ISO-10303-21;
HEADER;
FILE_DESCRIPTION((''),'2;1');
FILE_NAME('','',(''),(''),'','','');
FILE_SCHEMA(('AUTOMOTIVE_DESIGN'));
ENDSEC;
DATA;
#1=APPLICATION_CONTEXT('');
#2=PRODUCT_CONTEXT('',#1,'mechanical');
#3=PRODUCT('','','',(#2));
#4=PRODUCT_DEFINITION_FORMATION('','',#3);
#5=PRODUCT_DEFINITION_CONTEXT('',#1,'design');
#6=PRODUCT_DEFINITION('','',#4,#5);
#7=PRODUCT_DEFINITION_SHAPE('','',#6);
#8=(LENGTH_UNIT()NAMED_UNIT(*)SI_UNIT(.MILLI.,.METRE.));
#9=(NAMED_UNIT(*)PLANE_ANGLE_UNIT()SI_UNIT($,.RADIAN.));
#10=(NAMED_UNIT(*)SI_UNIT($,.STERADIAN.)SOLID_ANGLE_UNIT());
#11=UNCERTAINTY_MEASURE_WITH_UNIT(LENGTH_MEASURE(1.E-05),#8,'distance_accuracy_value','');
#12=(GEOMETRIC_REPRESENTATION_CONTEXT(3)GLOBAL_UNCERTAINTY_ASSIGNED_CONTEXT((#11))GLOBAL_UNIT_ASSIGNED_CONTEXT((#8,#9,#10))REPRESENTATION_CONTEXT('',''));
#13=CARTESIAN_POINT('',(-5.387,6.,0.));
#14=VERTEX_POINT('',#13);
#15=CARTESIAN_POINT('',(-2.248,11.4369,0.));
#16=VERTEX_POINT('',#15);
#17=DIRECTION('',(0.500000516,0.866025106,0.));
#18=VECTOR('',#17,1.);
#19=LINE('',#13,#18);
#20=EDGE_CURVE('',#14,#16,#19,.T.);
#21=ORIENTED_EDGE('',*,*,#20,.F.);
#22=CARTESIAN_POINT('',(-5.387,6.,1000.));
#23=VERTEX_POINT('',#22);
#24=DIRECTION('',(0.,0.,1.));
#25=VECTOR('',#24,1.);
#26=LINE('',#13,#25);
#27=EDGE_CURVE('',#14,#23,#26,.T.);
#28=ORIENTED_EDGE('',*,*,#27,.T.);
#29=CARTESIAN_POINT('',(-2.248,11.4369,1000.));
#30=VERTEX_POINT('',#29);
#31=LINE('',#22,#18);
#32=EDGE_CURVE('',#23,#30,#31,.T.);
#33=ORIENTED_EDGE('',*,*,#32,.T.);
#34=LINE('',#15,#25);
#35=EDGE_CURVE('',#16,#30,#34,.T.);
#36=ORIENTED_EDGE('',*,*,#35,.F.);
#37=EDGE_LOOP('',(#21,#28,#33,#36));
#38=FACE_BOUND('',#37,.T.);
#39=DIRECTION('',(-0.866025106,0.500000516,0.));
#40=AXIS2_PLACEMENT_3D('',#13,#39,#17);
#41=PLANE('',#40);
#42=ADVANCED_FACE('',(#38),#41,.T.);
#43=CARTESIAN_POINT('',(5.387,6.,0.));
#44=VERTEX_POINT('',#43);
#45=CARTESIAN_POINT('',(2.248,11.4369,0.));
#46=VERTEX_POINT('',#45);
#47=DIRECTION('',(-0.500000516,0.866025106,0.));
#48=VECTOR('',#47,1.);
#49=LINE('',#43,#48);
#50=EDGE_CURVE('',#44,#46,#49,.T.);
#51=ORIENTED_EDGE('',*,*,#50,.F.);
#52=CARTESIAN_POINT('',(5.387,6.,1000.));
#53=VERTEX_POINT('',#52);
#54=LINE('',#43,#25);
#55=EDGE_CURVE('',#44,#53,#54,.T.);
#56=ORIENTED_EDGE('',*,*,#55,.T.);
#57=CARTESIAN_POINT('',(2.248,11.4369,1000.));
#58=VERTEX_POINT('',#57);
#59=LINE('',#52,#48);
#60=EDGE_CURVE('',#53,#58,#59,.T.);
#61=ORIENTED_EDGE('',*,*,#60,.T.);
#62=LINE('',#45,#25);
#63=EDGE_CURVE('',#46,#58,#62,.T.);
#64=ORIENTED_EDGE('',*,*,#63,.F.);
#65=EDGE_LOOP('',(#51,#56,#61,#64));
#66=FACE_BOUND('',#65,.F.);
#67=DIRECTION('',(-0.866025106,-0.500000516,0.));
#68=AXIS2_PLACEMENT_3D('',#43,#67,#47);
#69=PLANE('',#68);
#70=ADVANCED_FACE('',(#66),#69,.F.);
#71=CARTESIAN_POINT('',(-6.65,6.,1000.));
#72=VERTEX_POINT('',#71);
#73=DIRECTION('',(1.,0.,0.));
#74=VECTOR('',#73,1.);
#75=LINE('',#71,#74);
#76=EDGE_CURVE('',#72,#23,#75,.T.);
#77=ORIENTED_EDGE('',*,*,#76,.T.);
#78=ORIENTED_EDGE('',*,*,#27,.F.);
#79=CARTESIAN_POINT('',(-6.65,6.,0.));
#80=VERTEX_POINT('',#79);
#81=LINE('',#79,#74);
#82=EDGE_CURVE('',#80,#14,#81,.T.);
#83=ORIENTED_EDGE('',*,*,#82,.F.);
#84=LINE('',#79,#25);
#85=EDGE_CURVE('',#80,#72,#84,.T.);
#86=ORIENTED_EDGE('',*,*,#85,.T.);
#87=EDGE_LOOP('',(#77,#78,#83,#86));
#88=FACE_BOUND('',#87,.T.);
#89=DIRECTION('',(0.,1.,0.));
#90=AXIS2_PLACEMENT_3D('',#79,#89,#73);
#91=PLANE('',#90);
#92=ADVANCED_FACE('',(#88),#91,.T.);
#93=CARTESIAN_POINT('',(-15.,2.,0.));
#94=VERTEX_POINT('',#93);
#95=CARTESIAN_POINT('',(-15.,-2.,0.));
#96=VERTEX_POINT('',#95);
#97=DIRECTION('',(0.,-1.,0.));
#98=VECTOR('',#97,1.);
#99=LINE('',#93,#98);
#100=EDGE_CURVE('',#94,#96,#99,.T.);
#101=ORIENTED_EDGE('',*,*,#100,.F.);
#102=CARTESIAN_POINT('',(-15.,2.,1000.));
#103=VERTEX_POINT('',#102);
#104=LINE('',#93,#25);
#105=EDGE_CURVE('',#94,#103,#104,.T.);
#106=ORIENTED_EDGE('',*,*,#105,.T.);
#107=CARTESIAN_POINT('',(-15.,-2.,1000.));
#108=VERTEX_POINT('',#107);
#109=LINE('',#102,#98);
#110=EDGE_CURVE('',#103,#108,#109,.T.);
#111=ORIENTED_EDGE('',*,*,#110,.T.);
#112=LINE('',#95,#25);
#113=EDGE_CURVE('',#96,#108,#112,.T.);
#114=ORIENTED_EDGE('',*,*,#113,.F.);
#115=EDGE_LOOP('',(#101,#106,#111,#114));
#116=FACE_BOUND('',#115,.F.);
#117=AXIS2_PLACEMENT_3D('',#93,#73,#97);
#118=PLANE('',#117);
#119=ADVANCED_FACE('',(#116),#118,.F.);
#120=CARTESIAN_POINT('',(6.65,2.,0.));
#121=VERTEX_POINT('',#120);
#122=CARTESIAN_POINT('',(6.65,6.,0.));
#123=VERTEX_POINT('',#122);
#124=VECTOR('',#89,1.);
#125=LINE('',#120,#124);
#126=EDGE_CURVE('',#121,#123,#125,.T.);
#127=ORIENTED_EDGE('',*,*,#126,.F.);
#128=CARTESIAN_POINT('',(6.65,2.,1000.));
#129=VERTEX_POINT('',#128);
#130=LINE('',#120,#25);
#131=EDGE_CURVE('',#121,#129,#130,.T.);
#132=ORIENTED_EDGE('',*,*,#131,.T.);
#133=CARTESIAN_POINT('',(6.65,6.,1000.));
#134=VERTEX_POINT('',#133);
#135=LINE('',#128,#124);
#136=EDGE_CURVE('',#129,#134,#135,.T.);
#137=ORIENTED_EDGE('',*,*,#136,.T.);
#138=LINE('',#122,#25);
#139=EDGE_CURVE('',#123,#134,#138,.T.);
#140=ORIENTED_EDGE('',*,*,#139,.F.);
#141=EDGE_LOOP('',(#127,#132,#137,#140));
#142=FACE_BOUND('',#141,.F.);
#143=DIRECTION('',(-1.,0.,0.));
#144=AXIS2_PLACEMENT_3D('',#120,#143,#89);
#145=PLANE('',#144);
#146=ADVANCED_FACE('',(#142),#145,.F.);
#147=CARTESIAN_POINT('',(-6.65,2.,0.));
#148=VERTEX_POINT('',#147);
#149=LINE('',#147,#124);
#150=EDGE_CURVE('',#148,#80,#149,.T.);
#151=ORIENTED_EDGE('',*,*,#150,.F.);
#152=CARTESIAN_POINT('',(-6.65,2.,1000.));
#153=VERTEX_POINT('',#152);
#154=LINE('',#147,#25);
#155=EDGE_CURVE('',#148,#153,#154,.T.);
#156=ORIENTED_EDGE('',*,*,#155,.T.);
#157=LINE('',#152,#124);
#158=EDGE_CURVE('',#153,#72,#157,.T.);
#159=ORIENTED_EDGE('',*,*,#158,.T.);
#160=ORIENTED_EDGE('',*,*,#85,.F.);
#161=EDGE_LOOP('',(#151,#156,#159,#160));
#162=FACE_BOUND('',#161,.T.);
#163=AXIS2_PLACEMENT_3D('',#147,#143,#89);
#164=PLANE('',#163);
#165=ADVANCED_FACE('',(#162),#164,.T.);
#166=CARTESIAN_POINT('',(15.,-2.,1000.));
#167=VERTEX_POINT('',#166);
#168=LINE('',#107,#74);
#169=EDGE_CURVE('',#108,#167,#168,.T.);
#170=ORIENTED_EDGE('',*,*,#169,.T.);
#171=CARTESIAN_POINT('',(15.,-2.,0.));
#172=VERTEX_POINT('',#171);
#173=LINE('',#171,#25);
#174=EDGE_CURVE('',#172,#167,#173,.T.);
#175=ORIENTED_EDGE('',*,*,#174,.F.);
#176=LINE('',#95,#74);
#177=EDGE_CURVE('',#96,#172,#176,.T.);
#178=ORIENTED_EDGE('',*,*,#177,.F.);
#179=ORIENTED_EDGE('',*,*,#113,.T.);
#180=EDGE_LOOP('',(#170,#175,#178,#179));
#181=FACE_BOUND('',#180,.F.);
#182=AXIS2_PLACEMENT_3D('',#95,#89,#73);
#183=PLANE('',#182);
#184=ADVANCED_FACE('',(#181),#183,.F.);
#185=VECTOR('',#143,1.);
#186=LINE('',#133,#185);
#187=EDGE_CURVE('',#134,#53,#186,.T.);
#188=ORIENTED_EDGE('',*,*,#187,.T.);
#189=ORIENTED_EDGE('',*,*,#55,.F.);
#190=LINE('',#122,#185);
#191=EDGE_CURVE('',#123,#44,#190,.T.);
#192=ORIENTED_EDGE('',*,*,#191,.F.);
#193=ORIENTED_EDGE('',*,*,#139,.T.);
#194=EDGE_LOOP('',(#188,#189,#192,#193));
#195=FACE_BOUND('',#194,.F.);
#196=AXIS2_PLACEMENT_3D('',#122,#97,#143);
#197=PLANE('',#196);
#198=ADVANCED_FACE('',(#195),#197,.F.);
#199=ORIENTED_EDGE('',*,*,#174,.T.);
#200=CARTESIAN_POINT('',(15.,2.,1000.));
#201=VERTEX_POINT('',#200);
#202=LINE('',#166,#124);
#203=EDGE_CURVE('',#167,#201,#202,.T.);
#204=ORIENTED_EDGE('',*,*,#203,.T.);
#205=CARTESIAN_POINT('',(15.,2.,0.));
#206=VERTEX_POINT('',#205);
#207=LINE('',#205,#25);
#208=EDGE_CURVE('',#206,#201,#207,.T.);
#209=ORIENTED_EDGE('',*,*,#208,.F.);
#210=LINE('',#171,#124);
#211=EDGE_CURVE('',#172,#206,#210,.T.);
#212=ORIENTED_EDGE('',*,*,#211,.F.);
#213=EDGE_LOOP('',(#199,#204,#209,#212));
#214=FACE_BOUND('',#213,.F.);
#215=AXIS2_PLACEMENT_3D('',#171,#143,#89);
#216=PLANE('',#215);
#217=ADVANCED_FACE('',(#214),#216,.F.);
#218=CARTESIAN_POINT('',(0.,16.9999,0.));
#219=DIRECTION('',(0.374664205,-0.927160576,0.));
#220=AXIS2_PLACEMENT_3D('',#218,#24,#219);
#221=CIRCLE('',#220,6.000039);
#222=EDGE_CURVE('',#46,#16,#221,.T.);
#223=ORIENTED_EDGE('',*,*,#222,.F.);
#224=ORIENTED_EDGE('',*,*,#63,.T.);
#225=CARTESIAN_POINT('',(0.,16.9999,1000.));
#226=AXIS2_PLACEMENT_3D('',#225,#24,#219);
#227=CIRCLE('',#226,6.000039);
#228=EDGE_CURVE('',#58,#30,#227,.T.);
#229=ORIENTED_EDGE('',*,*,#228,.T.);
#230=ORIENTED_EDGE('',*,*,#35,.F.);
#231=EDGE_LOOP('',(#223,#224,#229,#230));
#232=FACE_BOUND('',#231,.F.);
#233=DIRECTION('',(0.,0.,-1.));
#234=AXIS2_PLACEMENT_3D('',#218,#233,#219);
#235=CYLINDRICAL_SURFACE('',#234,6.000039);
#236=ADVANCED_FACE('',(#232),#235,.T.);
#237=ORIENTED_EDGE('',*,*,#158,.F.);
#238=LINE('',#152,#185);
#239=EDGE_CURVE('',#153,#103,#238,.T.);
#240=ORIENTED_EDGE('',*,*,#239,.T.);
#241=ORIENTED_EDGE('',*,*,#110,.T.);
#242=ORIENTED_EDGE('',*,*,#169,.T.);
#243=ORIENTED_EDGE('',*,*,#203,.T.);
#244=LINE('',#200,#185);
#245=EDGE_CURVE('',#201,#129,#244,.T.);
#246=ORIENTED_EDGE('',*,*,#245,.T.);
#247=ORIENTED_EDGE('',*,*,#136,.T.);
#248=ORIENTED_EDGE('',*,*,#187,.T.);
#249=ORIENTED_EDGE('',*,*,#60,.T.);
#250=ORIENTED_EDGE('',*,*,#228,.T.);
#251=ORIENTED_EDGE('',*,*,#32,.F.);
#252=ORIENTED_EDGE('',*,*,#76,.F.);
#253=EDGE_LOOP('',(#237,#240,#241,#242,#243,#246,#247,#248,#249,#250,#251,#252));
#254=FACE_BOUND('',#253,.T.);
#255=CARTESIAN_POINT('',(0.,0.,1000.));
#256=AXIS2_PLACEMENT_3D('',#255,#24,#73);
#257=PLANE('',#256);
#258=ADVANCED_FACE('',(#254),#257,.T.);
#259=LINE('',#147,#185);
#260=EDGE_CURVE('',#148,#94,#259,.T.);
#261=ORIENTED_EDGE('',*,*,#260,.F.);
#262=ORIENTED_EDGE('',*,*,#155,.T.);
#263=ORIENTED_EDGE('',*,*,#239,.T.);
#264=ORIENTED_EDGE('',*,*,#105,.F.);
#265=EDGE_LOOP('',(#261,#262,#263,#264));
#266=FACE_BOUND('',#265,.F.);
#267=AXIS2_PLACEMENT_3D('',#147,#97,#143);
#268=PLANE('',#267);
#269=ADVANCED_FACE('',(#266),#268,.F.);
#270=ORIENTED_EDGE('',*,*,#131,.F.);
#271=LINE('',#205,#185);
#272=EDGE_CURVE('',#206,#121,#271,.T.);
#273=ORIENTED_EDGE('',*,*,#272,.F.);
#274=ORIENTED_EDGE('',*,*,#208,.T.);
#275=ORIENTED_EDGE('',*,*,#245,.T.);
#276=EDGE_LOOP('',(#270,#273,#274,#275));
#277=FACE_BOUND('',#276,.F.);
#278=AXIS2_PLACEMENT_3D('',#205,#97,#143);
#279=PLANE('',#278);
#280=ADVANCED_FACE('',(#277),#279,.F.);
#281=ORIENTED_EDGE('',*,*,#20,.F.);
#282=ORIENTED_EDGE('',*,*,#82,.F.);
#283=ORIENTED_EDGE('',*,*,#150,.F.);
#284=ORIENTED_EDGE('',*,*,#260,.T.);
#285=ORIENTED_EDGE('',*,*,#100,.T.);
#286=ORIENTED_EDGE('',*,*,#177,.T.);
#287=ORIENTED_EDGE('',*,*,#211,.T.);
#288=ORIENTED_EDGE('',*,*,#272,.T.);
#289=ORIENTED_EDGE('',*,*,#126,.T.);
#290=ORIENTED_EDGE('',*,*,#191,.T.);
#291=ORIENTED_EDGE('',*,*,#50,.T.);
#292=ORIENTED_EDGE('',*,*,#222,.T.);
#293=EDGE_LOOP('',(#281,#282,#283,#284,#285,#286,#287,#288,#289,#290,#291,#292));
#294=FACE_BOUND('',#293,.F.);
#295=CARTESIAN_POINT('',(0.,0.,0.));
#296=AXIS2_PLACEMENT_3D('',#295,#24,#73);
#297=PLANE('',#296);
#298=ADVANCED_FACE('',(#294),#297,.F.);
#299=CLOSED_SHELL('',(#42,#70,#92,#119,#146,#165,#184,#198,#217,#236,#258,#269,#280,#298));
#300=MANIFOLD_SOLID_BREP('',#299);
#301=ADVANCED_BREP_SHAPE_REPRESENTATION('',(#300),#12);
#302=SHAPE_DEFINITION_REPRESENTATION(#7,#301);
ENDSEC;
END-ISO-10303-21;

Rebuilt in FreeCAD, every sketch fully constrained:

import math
import FreeCAD as App
import Part
import Sketcher
Q = App.Units.Quantity

doc = App.newDocument("Part")
body = doc.addObject("PartDesign::Body", "Body")

# Sketch on XY plane
sketch1 = body.newObject("Sketcher::SketchObject", "Sketch")
sketch1.AttachmentSupport = (doc.getObject("XY_Plane"), [""])
sketch1.MapMode = "FlatFace"
sketch1.addGeometry(Part.LineSegment(App.Vector(-6.7, 2, 0), App.Vector(-15, 2, 0)), False)
sketch1.addGeometry(Part.LineSegment(App.Vector(-15, 2, 0), App.Vector(-15, -2, 0)), False)
sketch1.addGeometry(Part.LineSegment(App.Vector(-15, -2, 0), App.Vector(15, -2, 0)), False)
sketch1.addGeometry(Part.LineSegment(App.Vector(15, -2, 0), App.Vector(15, 2, 0)), False)
sketch1.addGeometry(Part.LineSegment(App.Vector(15, 2, 0), App.Vector(6.7, 2, 0)), False)
sketch1.addGeometry(Part.LineSegment(App.Vector(6.7, 2, 0), App.Vector(6.7, 6, 0)), False)
sketch1.addGeometry(Part.LineSegment(App.Vector(6.7, 6, 0), App.Vector(5.4, 6, 0)), False)
sketch1.addGeometry(Part.LineSegment(App.Vector(5.4, 6, 0), App.Vector(2.2, 11.4, 0)), False)
sketch1.addGeometry(Part.ArcOfCircle(Part.Circle(App.Vector(0, 17, 0), App.Vector(0, 0, 1), 6), math.radians(-68), math.radians(248)), False)
sketch1.addGeometry(Part.LineSegment(App.Vector(-2.2, 11.4, 0), App.Vector(-5.4, 6, 0)), False)
sketch1.addGeometry(Part.LineSegment(App.Vector(-5.4, 6, 0), App.Vector(-6.7, 6, 0)), False)
sketch1.addGeometry(Part.LineSegment(App.Vector(-6.7, 6, 0), App.Vector(-6.7, 2, 0)), False)
sketch1.addConstraint(Sketcher.Constraint("Coincident", 0, 2, 1, 1))
sketch1.addConstraint(Sketcher.Constraint("Coincident", 1, 2, 2, 1))
sketch1.addConstraint(Sketcher.Constraint("Coincident", 2, 2, 3, 1))
sketch1.addConstraint(Sketcher.Constraint("Coincident", 3, 2, 4, 1))
sketch1.addConstraint(Sketcher.Constraint("Coincident", 4, 2, 5, 1))
sketch1.addConstraint(Sketcher.Constraint("Coincident", 5, 2, 6, 1))
sketch1.addConstraint(Sketcher.Constraint("Coincident", 6, 2, 7, 1))
sketch1.addConstraint(Sketcher.Constraint("Coincident", 7, 2, 8, 1))
sketch1.addConstraint(Sketcher.Constraint("Coincident", 8, 2, 9, 1))
sketch1.addConstraint(Sketcher.Constraint("Coincident", 9, 2, 10, 1))
sketch1.addConstraint(Sketcher.Constraint("Coincident", 10, 2, 11, 1))
sketch1.addConstraint(Sketcher.Constraint("Coincident", 11, 2, 0, 1))
sketch1.addConstraint(Sketcher.Constraint("Horizontal", 0))
sketch1.addConstraint(Sketcher.Constraint("Vertical", 1))
sketch1.addConstraint(Sketcher.Constraint("Horizontal", 2))
sketch1.addConstraint(Sketcher.Constraint("Vertical", 3))
sketch1.addConstraint(Sketcher.Constraint("Horizontal", 4))
sketch1.addConstraint(Sketcher.Constraint("Vertical", 5))
sketch1.addConstraint(Sketcher.Constraint("Horizontal", 6))
sketch1.addConstraint(Sketcher.Constraint("Horizontal", 10))
sketch1.addConstraint(Sketcher.Constraint("Vertical", 11))
sketch1.addConstraint(Sketcher.Constraint("Symmetric", 0, 2, 2, 2, -1, 1))
sketch1.addConstraint(Sketcher.Constraint("Symmetric", 7, 2, 8, 2, -2))
sketch1.addConstraint(Sketcher.Constraint("Symmetric", 6, 2, 9, 2, -2))
sketch1.addConstraint(Sketcher.Constraint("Symmetric", 4, 2, 11, 2, -2))
sketch1.addConstraint(Sketcher.Constraint("Equal", 3, 5))
sketch1.addConstraint(Sketcher.Constraint("Radius", 8, Q("6 mm")))
sketch1.addConstraint(Sketcher.Constraint("DistanceX", 2, 1, 2, 2, Q("30 mm")))
sketch1.addConstraint(Sketcher.Constraint("DistanceY", 1, 2, 1, 1, Q("4 mm")))
sketch1.addConstraint(Sketcher.Constraint("Angle", 7, Q("120 deg")))
sketch1.addConstraint(Sketcher.Constraint("DistanceX", 0, 2, 0, 1, Q("8.35 mm")))
sketch1.addConstraint(Sketcher.Constraint("DistanceX", 6, 2, 6, 1, Q("1.263 mm")))
sketch1.addConstraint(Sketcher.Constraint("Distance", 7, Q("6.278 mm")))
pad1 = body.newObject("PartDesign::Pad", "Pad")
pad1.Profile = sketch1
pad1.Length = 1000

doc.recompute()
